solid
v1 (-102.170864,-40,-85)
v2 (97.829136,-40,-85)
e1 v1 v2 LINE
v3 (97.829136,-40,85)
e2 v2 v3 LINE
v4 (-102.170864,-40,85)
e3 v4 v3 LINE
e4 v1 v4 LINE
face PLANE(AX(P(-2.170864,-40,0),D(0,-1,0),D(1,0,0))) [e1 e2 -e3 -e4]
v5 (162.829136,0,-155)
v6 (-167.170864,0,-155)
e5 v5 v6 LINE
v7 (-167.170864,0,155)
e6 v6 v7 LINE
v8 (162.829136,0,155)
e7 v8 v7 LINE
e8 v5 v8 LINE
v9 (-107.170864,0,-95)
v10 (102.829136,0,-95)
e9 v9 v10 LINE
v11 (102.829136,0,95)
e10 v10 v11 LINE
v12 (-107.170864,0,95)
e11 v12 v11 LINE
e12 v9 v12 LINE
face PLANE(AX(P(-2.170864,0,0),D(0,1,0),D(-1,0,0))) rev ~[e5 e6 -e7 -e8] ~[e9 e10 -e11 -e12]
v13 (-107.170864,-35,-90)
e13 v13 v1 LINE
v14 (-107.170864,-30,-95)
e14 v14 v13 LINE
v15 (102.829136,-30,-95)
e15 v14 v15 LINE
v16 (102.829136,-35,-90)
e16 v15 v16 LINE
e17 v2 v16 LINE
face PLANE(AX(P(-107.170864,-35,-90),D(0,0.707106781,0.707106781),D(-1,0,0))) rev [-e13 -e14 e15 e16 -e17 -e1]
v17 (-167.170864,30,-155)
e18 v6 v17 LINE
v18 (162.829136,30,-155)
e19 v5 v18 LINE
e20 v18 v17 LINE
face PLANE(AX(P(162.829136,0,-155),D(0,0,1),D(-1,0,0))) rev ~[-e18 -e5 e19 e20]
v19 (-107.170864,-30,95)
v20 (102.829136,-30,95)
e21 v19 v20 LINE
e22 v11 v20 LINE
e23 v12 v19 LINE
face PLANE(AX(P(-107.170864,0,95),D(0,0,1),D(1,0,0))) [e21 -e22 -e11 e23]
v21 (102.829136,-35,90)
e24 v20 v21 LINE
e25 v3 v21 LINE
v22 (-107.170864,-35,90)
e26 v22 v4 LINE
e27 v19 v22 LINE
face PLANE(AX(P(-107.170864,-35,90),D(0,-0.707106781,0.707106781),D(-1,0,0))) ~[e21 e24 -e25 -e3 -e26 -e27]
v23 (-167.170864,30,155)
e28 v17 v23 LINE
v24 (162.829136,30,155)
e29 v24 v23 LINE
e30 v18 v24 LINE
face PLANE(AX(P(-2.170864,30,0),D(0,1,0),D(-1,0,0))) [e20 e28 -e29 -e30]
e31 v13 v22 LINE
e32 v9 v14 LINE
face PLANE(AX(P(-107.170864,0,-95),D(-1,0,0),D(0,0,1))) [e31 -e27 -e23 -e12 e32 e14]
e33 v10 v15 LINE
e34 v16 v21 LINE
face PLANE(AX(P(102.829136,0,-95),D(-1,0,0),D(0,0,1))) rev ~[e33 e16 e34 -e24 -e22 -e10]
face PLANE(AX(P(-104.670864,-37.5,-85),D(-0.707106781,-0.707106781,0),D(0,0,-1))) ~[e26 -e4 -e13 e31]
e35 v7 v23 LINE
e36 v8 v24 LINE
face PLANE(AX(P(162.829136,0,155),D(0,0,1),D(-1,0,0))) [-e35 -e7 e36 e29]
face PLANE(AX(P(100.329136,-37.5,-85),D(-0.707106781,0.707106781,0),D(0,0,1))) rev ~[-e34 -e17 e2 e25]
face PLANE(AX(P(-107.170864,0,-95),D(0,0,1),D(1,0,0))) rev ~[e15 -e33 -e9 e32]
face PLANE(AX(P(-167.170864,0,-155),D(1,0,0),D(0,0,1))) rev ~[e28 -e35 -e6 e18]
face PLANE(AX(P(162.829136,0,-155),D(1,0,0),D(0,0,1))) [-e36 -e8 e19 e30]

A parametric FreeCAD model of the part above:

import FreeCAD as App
import Part
import Sketcher
from FreeCAD import Vector
Q = App.Units.Quantity


def edges_at(feature, points):
    """Names of the edges that pass closest to the given points."""
    edges = feature.Shape.Edges
    near = lambda p: min(range(len(edges)), key=lambda i: edges[i].distToShape(Part.Vertex(*p))[0])
    return sorted({f"Edge{near(p) + 1}" for p in points})

doc = App.newDocument("Part")
body = doc.addObject("PartDesign::Body", "Body")

# Sketch on XZ plane
sketch1 = body.newObject("Sketcher::SketchObject", "Sketch")
sketch1.AttachmentSupport = (doc.getObject("XZ_Plane"), [""])
sketch1.MapMode = "FlatFace"
sketch1.addGeometry([
    Part.LineSegment(Vector(-107.170864, 95, 0), Vector(-107.170864, -95, 0)),
    Part.LineSegment(Vector(-107.170864, -95, 0), Vector(102.829136, -95, 0)),
    Part.LineSegment(Vector(102.829136, -95, 0), Vector(102.829136, 95, 0)),
    Part.LineSegment(Vector(102.829136, 95, 0), Vector(-107.170864, 95, 0)),
], False)
sketch1.addConstraint([
    Sketcher.Constraint("Coincident", 0, 2, 1, 1),
    Sketcher.Constraint("Coincident", 1, 2, 2, 1),
    Sketcher.Constraint("Coincident", 2, 2, 3, 1),
    Sketcher.Constraint("Coincident", 3, 2, 0, 1),
    Sketcher.Constraint("Vertical", 0),
    Sketcher.Constraint("Horizontal", 1),
    Sketcher.Constraint("Vertical", 2),
    Sketcher.Constraint("Horizontal", 3),
    Sketcher.Constraint("DistanceX", 1, 1, 1, 2, Q("210 mm")),
    Sketcher.Constraint("DistanceY", 0, 2, 0, 1, Q("190 mm")),
    Sketcher.Constraint("DistanceY", 0, 2, -1, 1, Q("95 mm")),
    Sketcher.Constraint("DistanceX", 0, 2, -1, 1, Q("107.170864 mm")),
])
pad1 = body.newObject("PartDesign::Pad", "Pad")
pad1.Profile = sketch1
pad1.Length = 40

# Sketch on XZ plane
sketch2 = body.newObject("Sketcher::SketchObject", "Sketch001")
sketch2.AttachmentSupport = (doc.getObject("XZ_Plane"), [""])
sketch2.MapMode = "FlatFace"
sketch2.addGeometry([
    Part.LineSegment(Vector(162.829136, 155, 0), Vector(162.829136, -155, 0)),
    Part.LineSegment(Vector(162.829136, -155, 0), Vector(-167.170864, -155, 0)),
    Part.LineSegment(Vector(-167.170864, -155, 0), Vector(-167.170864, 155, 0)),
    Part.LineSegment(Vector(-167.170864, 155, 0), Vector(162.829136, 155, 0)),
], False)
sketch2.addConstraint([
    Sketcher.Constraint("Coincident", 0, 2, 1, 1),
    Sketcher.Constraint("Coincident", 1, 2, 2, 1),
    Sketcher.Constraint("Coincident", 2, 2, 3, 1),
    Sketcher.Constraint("Coincident", 3, 2, 0, 1),
    Sketcher.Constraint("Vertical", 0),
    Sketcher.Constraint("Horizontal", 1),
    Sketcher.Constraint("Vertical", 2),
    Sketcher.Constraint("Horizontal", 3),
    Sketcher.Constraint("DistanceX", 1, 2, 1, 1, Q("330 mm")),
    Sketcher.Constraint("DistanceY", 0, 2, 0, 1, Q("310 mm")),
    Sketcher.Constraint("DistanceY", 0, 2, -1, 1, Q("155 mm")),
    Sketcher.Constraint("DistanceX", -1, 1, 0, 2, Q("162.829136 mm")),
])
pad2 = body.newObject("PartDesign::Pad", "Pad001")
pad2.Profile = sketch2
pad2.Length = 30
pad2.Reversed = True
doc.recompute()

chamfer = body.newObject("PartDesign::Chamfer", "Chamfer")
chamfer.Base = (pad2, edges_at(pad2, [(-2.171, -40, 95), (-2.171, -40, -95)]))
chamfer.Size = 10
doc.recompute()

chamfer2 = body.newObject("PartDesign::Chamfer", "Chamfer001")
chamfer2.Base = (chamfer, edges_at(chamfer, [(-107.171, -40, 0), (102.829, -40, 0)]))
chamfer2.Size = 5

doc.recompute()
